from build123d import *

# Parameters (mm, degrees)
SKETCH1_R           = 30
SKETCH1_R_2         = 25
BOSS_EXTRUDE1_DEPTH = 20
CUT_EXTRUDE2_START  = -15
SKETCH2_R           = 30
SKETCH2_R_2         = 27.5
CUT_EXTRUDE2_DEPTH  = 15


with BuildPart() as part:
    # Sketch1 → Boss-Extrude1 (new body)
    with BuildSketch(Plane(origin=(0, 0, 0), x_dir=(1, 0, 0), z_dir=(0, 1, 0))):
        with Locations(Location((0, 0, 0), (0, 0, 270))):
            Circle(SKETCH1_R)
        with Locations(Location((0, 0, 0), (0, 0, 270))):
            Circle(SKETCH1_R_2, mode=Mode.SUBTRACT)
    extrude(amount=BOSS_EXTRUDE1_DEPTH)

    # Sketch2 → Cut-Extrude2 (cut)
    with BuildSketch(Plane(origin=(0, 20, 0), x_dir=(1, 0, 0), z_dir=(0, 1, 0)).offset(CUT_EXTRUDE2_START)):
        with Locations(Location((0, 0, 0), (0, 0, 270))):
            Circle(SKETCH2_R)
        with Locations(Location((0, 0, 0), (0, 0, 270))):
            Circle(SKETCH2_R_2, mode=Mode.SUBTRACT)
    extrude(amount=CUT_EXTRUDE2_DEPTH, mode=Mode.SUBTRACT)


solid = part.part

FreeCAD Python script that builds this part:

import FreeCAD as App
import Part
import Sketcher

V = App.Vector
Q = App.Units.Quantity

doc = App.newDocument("Part")
body = doc.addObject("PartDesign::Body", "Body")

sketch1 = doc.addObject("Sketcher::SketchObject", "Sketch")
body.addObject(sketch1)
sketch1.AttachmentSupport = (doc.XZ_Plane, [""])
sketch1.MapMode = "FlatFace"
sketch1.addGeometry([
    Part.Circle(V(0, 0, 0), V(0, 0, 1), 30),
    Part.Circle(V(0, 0, 0), V(0, 0, 1), 25),
], False)
sketch1.addConstraint([
    Sketcher.Constraint("Coincident", 0, 3, -1, 1),
    Sketcher.Constraint("Coincident", 1, 3, -1, 1),
    Sketcher.Constraint("Diameter", 0, Q("60 mm")),
    Sketcher.Constraint("Diameter", 1, Q("50 mm")),
])
pad1 = doc.addObject("PartDesign::Pad", "Pad")
body.addObject(pad1)
pad1.Profile = sketch1
pad1.Length = 20
pad1.Reversed = True

sketch2 = doc.addObject("Sketcher::SketchObject", "Sketch001")
body.addObject(sketch2)
sketch2.AttachmentSupport = (doc.XZ_Plane, [""])
sketch2.MapMode = "FlatFace"
sketch2.AttachmentOffset = App.Placement(V(0, 0, -5), App.Rotation())
sketch2.addGeometry([
    Part.Circle(V(0, 0, 0), V(0, 0, 1), 30),
    Part.Circle(V(0, 0, 0), V(0, 0, 1), 28),
], False)
sketch2.addConstraint([
    Sketcher.Constraint("Coincident", 0, 3, -1, 1),
    Sketcher.Constraint("Coincident", 1, 3, -1, 1),
    Sketcher.Constraint("Diameter", 0, Q("60 mm")),
    Sketcher.Constraint("Diameter", 1, Q("55 mm")),
])
pocket1 = doc.addObject("PartDesign::Pocket", "Pocket")
body.addObject(pocket1)
pocket1.Profile = sketch2
pocket1.Length = 15

doc.recompute()
